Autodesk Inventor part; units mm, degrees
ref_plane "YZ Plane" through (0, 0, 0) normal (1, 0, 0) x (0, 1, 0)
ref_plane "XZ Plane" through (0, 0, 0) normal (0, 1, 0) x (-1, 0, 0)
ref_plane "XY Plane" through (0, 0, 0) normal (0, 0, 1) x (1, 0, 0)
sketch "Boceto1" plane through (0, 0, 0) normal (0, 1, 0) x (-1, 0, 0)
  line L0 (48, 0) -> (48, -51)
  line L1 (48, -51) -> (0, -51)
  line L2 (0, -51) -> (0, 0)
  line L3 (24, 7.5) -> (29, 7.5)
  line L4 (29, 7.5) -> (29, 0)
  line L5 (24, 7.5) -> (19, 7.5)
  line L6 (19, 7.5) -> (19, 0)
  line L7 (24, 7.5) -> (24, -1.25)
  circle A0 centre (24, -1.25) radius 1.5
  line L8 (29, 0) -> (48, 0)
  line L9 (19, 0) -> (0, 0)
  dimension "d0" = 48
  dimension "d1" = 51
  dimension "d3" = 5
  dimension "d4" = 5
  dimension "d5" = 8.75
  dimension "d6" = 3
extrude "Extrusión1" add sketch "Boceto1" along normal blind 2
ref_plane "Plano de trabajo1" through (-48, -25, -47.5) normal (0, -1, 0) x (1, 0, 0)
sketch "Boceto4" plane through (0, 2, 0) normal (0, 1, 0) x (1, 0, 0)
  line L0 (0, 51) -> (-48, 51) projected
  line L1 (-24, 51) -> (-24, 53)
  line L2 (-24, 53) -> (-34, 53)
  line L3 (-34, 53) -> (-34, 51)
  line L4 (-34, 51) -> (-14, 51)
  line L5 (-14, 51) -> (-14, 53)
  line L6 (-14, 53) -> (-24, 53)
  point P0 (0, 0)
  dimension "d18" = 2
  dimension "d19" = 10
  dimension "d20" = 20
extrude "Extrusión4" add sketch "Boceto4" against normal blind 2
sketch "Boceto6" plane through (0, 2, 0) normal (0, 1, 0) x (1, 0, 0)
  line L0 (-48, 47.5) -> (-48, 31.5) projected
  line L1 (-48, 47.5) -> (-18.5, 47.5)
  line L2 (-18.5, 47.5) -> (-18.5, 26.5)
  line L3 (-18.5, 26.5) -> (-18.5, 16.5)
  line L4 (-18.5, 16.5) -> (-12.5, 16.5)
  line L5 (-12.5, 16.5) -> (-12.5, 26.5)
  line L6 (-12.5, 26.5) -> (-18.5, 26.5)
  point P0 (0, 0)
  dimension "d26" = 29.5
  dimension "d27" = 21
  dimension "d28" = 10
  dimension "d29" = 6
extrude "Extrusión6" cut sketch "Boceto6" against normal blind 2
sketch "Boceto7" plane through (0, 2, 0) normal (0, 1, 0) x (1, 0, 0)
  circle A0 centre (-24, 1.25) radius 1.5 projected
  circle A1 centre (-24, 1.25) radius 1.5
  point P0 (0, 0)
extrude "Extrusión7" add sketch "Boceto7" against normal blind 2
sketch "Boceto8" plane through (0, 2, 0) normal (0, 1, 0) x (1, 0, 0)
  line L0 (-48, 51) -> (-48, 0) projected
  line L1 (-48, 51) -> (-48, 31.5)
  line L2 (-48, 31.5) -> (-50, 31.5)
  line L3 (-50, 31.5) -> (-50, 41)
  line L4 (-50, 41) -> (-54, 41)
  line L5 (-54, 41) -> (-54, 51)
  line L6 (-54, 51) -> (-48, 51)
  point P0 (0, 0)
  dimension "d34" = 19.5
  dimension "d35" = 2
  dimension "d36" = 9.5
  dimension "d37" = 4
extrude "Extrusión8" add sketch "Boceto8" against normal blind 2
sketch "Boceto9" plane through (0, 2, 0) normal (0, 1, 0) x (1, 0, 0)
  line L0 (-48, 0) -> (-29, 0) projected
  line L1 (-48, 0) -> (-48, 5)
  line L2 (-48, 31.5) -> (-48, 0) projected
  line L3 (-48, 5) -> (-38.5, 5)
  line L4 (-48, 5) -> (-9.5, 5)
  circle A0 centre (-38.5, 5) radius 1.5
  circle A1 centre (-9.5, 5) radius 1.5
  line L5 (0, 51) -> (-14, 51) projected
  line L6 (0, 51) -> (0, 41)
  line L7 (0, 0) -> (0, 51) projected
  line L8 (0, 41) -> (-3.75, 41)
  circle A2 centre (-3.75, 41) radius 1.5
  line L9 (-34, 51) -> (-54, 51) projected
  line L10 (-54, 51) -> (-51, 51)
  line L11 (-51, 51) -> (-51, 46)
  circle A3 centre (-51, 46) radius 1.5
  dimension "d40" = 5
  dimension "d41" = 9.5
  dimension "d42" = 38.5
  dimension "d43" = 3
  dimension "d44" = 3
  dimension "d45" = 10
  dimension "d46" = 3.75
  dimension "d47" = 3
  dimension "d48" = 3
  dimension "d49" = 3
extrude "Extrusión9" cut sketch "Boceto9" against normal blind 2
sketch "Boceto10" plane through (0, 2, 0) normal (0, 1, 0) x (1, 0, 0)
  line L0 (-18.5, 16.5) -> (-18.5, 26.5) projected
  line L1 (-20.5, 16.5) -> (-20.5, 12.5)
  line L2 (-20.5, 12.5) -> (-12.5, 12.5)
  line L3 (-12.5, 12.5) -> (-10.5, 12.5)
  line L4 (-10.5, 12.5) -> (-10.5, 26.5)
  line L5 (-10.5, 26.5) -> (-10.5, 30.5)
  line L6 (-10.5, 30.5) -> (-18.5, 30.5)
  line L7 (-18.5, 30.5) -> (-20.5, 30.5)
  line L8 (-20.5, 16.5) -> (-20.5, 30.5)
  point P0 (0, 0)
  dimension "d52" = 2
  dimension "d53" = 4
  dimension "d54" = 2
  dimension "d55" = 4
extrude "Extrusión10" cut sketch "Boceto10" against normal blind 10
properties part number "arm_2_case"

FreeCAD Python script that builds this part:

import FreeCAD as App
import Part
import Sketcher
from FreeCAD import Vector

doc = App.newDocument("Part")
body = doc.addObject("PartDesign::Body", "Body")

sketch1 = body.newObject("Sketcher::SketchObject", "Sketch")
sketch1.AttachmentSupport = (doc.getObject("XZ_Plane"), [""])
sketch1.MapMode = "FlatFace"
sketch1.addGeometry(Part.LineSegment(Vector(-48, -51, 0), Vector(-48, 0, 0)), False)
sketch1.addGeometry(Part.LineSegment(Vector(-48, 0, 0), Vector(-29, 0, 0)), False)
sketch1.addGeometry(Part.LineSegment(Vector(-29, 0, 0), Vector(-29, 7.5, 0)), False)
sketch1.addGeometry(Part.LineSegment(Vector(-29, 7.5, 0), Vector(-24, 7.5, 0)), False)
sketch1.addGeometry(Part.LineSegment(Vector(-24, 7.5, 0), Vector(-19, 7.5, 0)), False)
sketch1.addGeometry(Part.LineSegment(Vector(-19, 7.5, 0), Vector(-19, 0, 0)), False)
sketch1.addGeometry(Part.LineSegment(Vector(-19, 0, 0), Vector(0, 0, 0)), False)
sketch1.addGeometry(Part.LineSegment(Vector(0, 0, 0), Vector(0, -51, 0)), False)
sketch1.addGeometry(Part.LineSegment(Vector(0, -51, 0), Vector(-48, -51, 0)), False)
sketch1.addGeometry(Part.Circle(Vector(-24, -1.2, 0), Vector(0, 0, 1), 1.5), False)
sketch1.addConstraint(Sketcher.Constraint("Coincident", 0, 2, 1, 1))
sketch1.addConstraint(Sketcher.Constraint("Coincident", 1, 2, 2, 1))
sketch1.addConstraint(Sketcher.Constraint("Coincident", 2, 2, 3, 1))
sketch1.addConstraint(Sketcher.Constraint("Coincident", 3, 2, 4, 1))
sketch1.addConstraint(Sketcher.Constraint("Coincident", 4, 2, 5, 1))
sketch1.addConstraint(Sketcher.Constraint("Coincident", 5, 2, 6, 1))
sketch1.addConstraint(Sketcher.Constraint("Coincident", 6, 2, 7, 1))
sketch1.addConstraint(Sketcher.Constraint("Coincident", 7, 2, 8, 1))
sketch1.addConstraint(Sketcher.Constraint("Coincident", 8, 2, 0, 1))
sketch1.addConstraint(Sketcher.Constraint("Vertical", 0))
sketch1.addConstraint(Sketcher.Constraint("Horizontal", 1))
sketch1.addConstraint(Sketcher.Constraint("Vertical", 2))
sketch1.addConstraint(Sketcher.Constraint("Horizontal", 3))
sketch1.addConstraint(Sketcher.Constraint("Horizontal", 4))
sketch1.addConstraint(Sketcher.Constraint("Vertical", 5))
sketch1.addConstraint(Sketcher.Constraint("Horizontal", 6))
sketch1.addConstraint(Sketcher.Constraint("Vertical", 7))
sketch1.addConstraint(Sketcher.Constraint("Horizontal", 8))
sketch1.addConstraint(Sketcher.Constraint("Coincident", 6, 2, -1, 1))
sketch1.addConstraint(Sketcher.Constraint("PointOnObject", 0, 2, -1))
sketch1.addConstraint(Sketcher.Constraint("Vertical", 9, 3, 3, 2))
sketch1.addConstraint(Sketcher.Constraint("Equal", 3, 4))
sketch1.addConstraint(Sketcher.Constraint("Equal", 1, 6))
sketch1.addConstraint(Sketcher.Constraint("Diameter", 9, 3.0))
sketch1.addConstraint(Sketcher.Constraint("DistanceX", 3, 1, 3, 2, 5.0))
sketch1.addConstraint(Sketcher.Constraint("DistanceX", 8, 2, 8, 1, 48.0))
sketch1.addConstraint(Sketcher.Constraint("DistanceY", 0, 1, 0, 2, 51.0))
sketch1.addConstraint(Sketcher.Constraint("DistanceY", 9, 3, 2, 2, 8.75))
sketch1.addConstraint(Sketcher.Constraint("DistanceY", 2, 1, 2, 2, 7.5))
pad1 = body.newObject("PartDesign::Pad", "Pad")
pad1.Profile = sketch1
pad1.Length = 2
pad1.Reversed = True

sketch2 = body.newObject("Sketcher::SketchObject", "Sketch001")
sketch2.AttachmentSupport = (doc.getObject("XZ_Plane"), [""])
sketch2.MapMode = "FlatFace"
sketch2.AttachmentOffset = App.Placement(Vector(0, 0, -2), App.Rotation())
sketch2.addGeometry(Part.LineSegment(Vector(-14, -51, 0), Vector(-14, -53, 0)), False)
sketch2.addGeometry(Part.LineSegment(Vector(-14, -53, 0), Vector(-34, -53, 0)), False)
sketch2.addGeometry(Part.LineSegment(Vector(-34, -53, 0), Vector(-34, -51, 0)), False)
sketch2.addGeometry(Part.LineSegment(Vector(-34, -51, 0), Vector(-14, -51, 0)), False)
sketch2.addConstraint(Sketcher.Constraint("Coincident", 0, 2, 1, 1))
sketch2.addConstraint(Sketcher.Constraint("Coincident", 1, 2, 2, 1))
sketch2.addConstraint(Sketcher.Constraint("Coincident", 2, 2, 3, 1))
sketch2.addConstraint(Sketcher.Constraint("Coincident", 3, 2, 0, 1))
sketch2.addConstraint(Sketcher.Constraint("Vertical", 0))
sketch2.addConstraint(Sketcher.Constraint("Horizontal", 1))
sketch2.addConstraint(Sketcher.Constraint("Vertical", 2))
sketch2.addConstraint(Sketcher.Constraint("Horizontal", 3))
sketch2.addConstraint(Sketcher.Constraint("DistanceX", 1, 2, 1, 1, 20.0))
sketch2.addConstraint(Sketcher.Constraint("DistanceY", 0, 2, 0, 1, 2.0))
sketch2.addConstraint(Sketcher.Constraint("DistanceX", 0, 2, -1, 1, 14.0))
sketch2.addConstraint(Sketcher.Constraint("DistanceY", 0, 2, -1, 1, 53.0))
pad2 = body.newObject("PartDesign::Pad", "Pad001")
pad2.Profile = sketch2
pad2.Length = 2

sketch3 = body.newObject("Sketcher::SketchObject", "Sketch002")
sketch3.AttachmentSupport = (doc.getObject("XZ_Plane"), [""])
sketch3.MapMode = "FlatFace"
sketch3.AttachmentOffset = App.Placement(Vector(0, 0, -2), App.Rotation())
sketch3.addGeometry(Part.LineSegment(Vector(-12, -26, 0), Vector(-18, -26, 0)), False)
sketch3.addGeometry(Part.LineSegment(Vector(-18, -26, 0), Vector(-18, -16, 0)), False)
sketch3.addGeometry(Part.LineSegment(Vector(-18, -16, 0), Vector(-12, -16, 0)), False)
sketch3.addGeometry(Part.LineSegment(Vector(-12, -16, 0), Vector(-12, -26, 0)), False)
sketch3.addConstraint(Sketcher.Constraint("Coincident", 0, 2, 1, 1))
sketch3.addConstraint(Sketcher.Constraint("Coincident", 1, 2, 2, 1))
sketch3.addConstraint(Sketcher.Constraint("Coincident", 2, 2, 3, 1))
sketch3.addConstraint(Sketcher.Constraint("Coincident", 3, 2, 0, 1))
sketch3.addConstraint(Sketcher.Constraint("Horizontal", 0))
sketch3.addConstraint(Sketcher.Constraint("Vertical", 1))
sketch3.addConstraint(Sketcher.Constraint("Horizontal", 2))
sketch3.addConstraint(Sketcher.Constraint("Vertical", 3))
sketch3.addConstraint(Sketcher.Constraint("DistanceX", 0, 2, 0, 1, 6.0))
sketch3.addConstraint(Sketcher.Constraint("DistanceY", 1, 1, 1, 2, 10.0))
sketch3.addConstraint(Sketcher.Constraint("DistanceX", 0, 2, -1, 1, 18.5))
sketch3.addConstraint(Sketcher.Constraint("DistanceY", 0, 2, -1, 1, 26.5))
pocket1 = body.newObject("PartDesign::Pocket", "Pocket")
pocket1.Profile = sketch3
pocket1.Length = 2
pocket1.Reversed = True

sketch4 = body.newObject("Sketcher::SketchObject", "Sketch003")
sketch4.AttachmentSupport = (doc.getObject("XZ_Plane"), [""])
sketch4.MapMode = "FlatFace"
sketch4.AttachmentOffset = App.Placement(Vector(0, 0, -2), App.Rotation())
sketch4.addGeometry(Part.Circle(Vector(-24, -1.2, 0), Vector(0, 0, 1), 1.5), False)
sketch4.addConstraint(Sketcher.Constraint("Diameter", 0, 3.0))
sketch4.addConstraint(Sketcher.Constraint("DistanceX", 0, 3, -1, 1, 24.0))
sketch4.addConstraint(Sketcher.Constraint("DistanceY", 0, 3, -1, 1, 1.25))
pad3 = body.newObject("PartDesign::Pad", "Pad002")
pad3.Profile = sketch4
pad3.Length = 2

sketch5 = body.newObject("Sketcher::SketchObject", "Sketch004")
sketch5.AttachmentSupport = (doc.getObject("XZ_Plane"), [""])
sketch5.MapMode = "FlatFace"
sketch5.AttachmentOffset = App.Placement(Vector(0, 0, -2), App.Rotation())
sketch5.addGeometry(Part.LineSegment(Vector(-48, -31.5, 0), Vector(-48, -51, 0)), False)
sketch5.addGeometry(Part.LineSegment(Vector(-48, -51, 0), Vector(-54, -51, 0)), False)
sketch5.addGeometry(Part.LineSegment(Vector(-54, -51, 0), Vector(-54, -41, 0)), False)
sketch5.addGeometry(Part.LineSegment(Vector(-54, -41, 0), Vector(-50, -41, 0)), False)
sketch5.addGeometry(Part.LineSegment(Vector(-50, -41, 0), Vector(-50, -31.5, 0)), False)
sketch5.addGeometry(Part.LineSegment(Vector(-50, -31.5, 0), Vector(-48, -31.5, 0)), False)
sketch5.addConstraint(Sketcher.Constraint("Coincident", 0, 2, 1, 1))
sketch5.addConstraint(Sketcher.Constraint("Coincident", 1, 2, 2, 1))
sketch5.addConstraint(Sketcher.Constraint("Coincident", 2, 2, 3, 1))
sketch5.addConstraint(Sketcher.Constraint("Coincident", 3, 2, 4, 1))
sketch5.addConstraint(Sketcher.Constraint("Coincident", 4, 2, 5, 1))
sketch5.addConstraint(Sketcher.Constraint("Coincident", 5, 2, 0, 1))
sketch5.addConstraint(Sketcher.Constraint("Vertical", 0))
sketch5.addConstraint(Sketcher.Constraint("Horizontal", 1))
sketch5.addConstraint(Sketcher.Constraint("Vertical", 2))
sketch5.addConstraint(Sketcher.Constraint("Horizontal", 3))
sketch5.addConstraint(Sketcher.Constraint("Vertical", 4))
sketch5.addConstraint(Sketcher.Constraint("Horizontal", 5))
sketch5.addConstraint(Sketcher.Constraint("DistanceX", 3, 1, 3, 2, 4.0))
sketch5.addConstraint(Sketcher.Constraint("DistanceX", 5, 1, 5, 2, 2.0))
sketch5.addConstraint(Sketcher.Constraint("DistanceY", 0, 2, 0, 1, 19.5))
sketch5.addConstraint(Sketcher.Constraint("DistanceY", 4, 1, 4, 2, 9.5))
sketch5.addConstraint(Sketcher.Constraint("DistanceX", 0, 2, -1, 1, 48.0))
sketch5.addConstraint(Sketcher.Constraint("DistanceY", 0, 2, -1, 1, 51.0))
pad4 = body.newObject("PartDesign::Pad", "Pad003")
pad4.Profile = sketch5
pad4.Length = 2

sketch6 = body.newObject("Sketcher::SketchObject", "Sketch005")
sketch6.AttachmentSupport = (doc.getObject("XZ_Plane"), [""])
sketch6.MapMode = "FlatFace"
sketch6.AttachmentOffset = App.Placement(Vector(0, 0, -2), App.Rotation())
sketch6.addGeometry(Part.Circle(Vector(-38.5, -5, 0), Vector(0, 0, 1), 1.5), False)
sketch6.addGeometry(Part.Circle(Vector(-9.5, -5, 0), Vector(0, 0, 1), 1.5), False)
sketch6.addGeometry(Part.Circle(Vector(-3.8, -41, 0), Vector(0, 0, 1), 1.5), False)
sketch6.addGeometry(Part.Circle(Vector(-51, -46, 0), Vector(0, 0, 1), 1.5), False)
sketch6.addConstraint(Sketcher.Constraint("Equal", 0, 1))
sketch6.addConstraint(Sketcher.Constraint("Equal", 1, 2))
sketch6.addConstraint(Sketcher.Constraint("Equal", 2, 3))
sketch6.addConstraint(Sketcher.Constraint("Horizontal", 0, 3, 1, 3))
sketch6.addConstraint(Sketcher.Constraint("Diameter", 0, 3.0))
sketch6.addConstraint(Sketcher.Constraint("DistanceY", 0, 3, -1, 1, 5.0))
sketch6.addConstraint(Sketcher.Constraint("DistanceY", 3, 3, 2, 3, 5.0))
sketch6.addConstraint(Sketcher.Constraint("DistanceX", 0, 3, -1, 1, 38.5))
sketch6.addConstraint(Sketcher.Constraint("DistanceX", 1, 3, -1, 1, 9.5))
sketch6.addConstraint(Sketcher.Constraint("DistanceX", 2, 3, -1, 1, 3.75))
sketch6.addConstraint(Sketcher.Constraint("DistanceY", 2, 3, -1, 1, 41.0))
sketch6.addConstraint(Sketcher.Constraint("DistanceX", 3, 3, -1, 1, 51.0))
pocket2 = body.newObject("PartDesign::Pocket", "Pocket001")
pocket2.Profile = sketch6
pocket2.Length = 2
pocket2.Reversed = True

sketch7 = body.newObject("Sketcher::SketchObject", "Sketch006")
sketch7.AttachmentSupport = (doc.getObject("XZ_Plane"), [""])
sketch7.MapMode = "FlatFace"
sketch7.AttachmentOffset = App.Placement(Vector(0, 0, -2), App.Rotation())
sketch7.addGeometry(Part.LineSegment(Vector(-20, -30, 0), Vector(-20, -12, 0)), False)
sketch7.addGeometry(Part.LineSegment(Vector(-20, -12, 0), Vector(-10, -12, 0)), False)
sketch7.addGeometry(Part.LineSegment(Vector(-10, -12, 0), Vector(-10, -30, 0)), False)
sketch7.addGeometry(Part.LineSegment(Vector(-10, -30, 0), Vector(-20, -30, 0)), False)
sketch7.addConstraint(Sketcher.Constraint("Coincident", 0, 2, 1, 1))
sketch7.addConstraint(Sketcher.Constraint("Coincident", 1, 2, 2, 1))
sketch7.addConstraint(Sketcher.Constraint("Coincident", 2, 2, 3, 1))
sketch7.addConstraint(Sketcher.Constraint("Coincident", 3, 2, 0, 1))
sketch7.addConstraint(Sketcher.Constraint("Vertical", 0))
sketch7.addConstraint(Sketcher.Constraint("Horizontal", 1))
sketch7.addConstraint(Sketcher.Constraint("Vertical", 2))
sketch7.addConstraint(Sketcher.Constraint("Horizontal", 3))
sketch7.addConstraint(Sketcher.Constraint("DistanceX", 1, 1, 1, 2, 10.0))
sketch7.addConstraint(Sketcher.Constraint("DistanceY", 0, 1, 0, 2, 18.0))
sketch7.addConstraint(Sketcher.Constraint("DistanceX", 0, 2, -1, 1, 20.5))
sketch7.addConstraint(Sketcher.Constraint("DistanceY", 0, 2, -1, 1, 12.5))
pocket3 = body.newObject("PartDesign::Pocket", "Pocket002")
pocket3.Profile = sketch7
pocket3.Length = 10
pocket3.Reversed = True

doc.recompute()
